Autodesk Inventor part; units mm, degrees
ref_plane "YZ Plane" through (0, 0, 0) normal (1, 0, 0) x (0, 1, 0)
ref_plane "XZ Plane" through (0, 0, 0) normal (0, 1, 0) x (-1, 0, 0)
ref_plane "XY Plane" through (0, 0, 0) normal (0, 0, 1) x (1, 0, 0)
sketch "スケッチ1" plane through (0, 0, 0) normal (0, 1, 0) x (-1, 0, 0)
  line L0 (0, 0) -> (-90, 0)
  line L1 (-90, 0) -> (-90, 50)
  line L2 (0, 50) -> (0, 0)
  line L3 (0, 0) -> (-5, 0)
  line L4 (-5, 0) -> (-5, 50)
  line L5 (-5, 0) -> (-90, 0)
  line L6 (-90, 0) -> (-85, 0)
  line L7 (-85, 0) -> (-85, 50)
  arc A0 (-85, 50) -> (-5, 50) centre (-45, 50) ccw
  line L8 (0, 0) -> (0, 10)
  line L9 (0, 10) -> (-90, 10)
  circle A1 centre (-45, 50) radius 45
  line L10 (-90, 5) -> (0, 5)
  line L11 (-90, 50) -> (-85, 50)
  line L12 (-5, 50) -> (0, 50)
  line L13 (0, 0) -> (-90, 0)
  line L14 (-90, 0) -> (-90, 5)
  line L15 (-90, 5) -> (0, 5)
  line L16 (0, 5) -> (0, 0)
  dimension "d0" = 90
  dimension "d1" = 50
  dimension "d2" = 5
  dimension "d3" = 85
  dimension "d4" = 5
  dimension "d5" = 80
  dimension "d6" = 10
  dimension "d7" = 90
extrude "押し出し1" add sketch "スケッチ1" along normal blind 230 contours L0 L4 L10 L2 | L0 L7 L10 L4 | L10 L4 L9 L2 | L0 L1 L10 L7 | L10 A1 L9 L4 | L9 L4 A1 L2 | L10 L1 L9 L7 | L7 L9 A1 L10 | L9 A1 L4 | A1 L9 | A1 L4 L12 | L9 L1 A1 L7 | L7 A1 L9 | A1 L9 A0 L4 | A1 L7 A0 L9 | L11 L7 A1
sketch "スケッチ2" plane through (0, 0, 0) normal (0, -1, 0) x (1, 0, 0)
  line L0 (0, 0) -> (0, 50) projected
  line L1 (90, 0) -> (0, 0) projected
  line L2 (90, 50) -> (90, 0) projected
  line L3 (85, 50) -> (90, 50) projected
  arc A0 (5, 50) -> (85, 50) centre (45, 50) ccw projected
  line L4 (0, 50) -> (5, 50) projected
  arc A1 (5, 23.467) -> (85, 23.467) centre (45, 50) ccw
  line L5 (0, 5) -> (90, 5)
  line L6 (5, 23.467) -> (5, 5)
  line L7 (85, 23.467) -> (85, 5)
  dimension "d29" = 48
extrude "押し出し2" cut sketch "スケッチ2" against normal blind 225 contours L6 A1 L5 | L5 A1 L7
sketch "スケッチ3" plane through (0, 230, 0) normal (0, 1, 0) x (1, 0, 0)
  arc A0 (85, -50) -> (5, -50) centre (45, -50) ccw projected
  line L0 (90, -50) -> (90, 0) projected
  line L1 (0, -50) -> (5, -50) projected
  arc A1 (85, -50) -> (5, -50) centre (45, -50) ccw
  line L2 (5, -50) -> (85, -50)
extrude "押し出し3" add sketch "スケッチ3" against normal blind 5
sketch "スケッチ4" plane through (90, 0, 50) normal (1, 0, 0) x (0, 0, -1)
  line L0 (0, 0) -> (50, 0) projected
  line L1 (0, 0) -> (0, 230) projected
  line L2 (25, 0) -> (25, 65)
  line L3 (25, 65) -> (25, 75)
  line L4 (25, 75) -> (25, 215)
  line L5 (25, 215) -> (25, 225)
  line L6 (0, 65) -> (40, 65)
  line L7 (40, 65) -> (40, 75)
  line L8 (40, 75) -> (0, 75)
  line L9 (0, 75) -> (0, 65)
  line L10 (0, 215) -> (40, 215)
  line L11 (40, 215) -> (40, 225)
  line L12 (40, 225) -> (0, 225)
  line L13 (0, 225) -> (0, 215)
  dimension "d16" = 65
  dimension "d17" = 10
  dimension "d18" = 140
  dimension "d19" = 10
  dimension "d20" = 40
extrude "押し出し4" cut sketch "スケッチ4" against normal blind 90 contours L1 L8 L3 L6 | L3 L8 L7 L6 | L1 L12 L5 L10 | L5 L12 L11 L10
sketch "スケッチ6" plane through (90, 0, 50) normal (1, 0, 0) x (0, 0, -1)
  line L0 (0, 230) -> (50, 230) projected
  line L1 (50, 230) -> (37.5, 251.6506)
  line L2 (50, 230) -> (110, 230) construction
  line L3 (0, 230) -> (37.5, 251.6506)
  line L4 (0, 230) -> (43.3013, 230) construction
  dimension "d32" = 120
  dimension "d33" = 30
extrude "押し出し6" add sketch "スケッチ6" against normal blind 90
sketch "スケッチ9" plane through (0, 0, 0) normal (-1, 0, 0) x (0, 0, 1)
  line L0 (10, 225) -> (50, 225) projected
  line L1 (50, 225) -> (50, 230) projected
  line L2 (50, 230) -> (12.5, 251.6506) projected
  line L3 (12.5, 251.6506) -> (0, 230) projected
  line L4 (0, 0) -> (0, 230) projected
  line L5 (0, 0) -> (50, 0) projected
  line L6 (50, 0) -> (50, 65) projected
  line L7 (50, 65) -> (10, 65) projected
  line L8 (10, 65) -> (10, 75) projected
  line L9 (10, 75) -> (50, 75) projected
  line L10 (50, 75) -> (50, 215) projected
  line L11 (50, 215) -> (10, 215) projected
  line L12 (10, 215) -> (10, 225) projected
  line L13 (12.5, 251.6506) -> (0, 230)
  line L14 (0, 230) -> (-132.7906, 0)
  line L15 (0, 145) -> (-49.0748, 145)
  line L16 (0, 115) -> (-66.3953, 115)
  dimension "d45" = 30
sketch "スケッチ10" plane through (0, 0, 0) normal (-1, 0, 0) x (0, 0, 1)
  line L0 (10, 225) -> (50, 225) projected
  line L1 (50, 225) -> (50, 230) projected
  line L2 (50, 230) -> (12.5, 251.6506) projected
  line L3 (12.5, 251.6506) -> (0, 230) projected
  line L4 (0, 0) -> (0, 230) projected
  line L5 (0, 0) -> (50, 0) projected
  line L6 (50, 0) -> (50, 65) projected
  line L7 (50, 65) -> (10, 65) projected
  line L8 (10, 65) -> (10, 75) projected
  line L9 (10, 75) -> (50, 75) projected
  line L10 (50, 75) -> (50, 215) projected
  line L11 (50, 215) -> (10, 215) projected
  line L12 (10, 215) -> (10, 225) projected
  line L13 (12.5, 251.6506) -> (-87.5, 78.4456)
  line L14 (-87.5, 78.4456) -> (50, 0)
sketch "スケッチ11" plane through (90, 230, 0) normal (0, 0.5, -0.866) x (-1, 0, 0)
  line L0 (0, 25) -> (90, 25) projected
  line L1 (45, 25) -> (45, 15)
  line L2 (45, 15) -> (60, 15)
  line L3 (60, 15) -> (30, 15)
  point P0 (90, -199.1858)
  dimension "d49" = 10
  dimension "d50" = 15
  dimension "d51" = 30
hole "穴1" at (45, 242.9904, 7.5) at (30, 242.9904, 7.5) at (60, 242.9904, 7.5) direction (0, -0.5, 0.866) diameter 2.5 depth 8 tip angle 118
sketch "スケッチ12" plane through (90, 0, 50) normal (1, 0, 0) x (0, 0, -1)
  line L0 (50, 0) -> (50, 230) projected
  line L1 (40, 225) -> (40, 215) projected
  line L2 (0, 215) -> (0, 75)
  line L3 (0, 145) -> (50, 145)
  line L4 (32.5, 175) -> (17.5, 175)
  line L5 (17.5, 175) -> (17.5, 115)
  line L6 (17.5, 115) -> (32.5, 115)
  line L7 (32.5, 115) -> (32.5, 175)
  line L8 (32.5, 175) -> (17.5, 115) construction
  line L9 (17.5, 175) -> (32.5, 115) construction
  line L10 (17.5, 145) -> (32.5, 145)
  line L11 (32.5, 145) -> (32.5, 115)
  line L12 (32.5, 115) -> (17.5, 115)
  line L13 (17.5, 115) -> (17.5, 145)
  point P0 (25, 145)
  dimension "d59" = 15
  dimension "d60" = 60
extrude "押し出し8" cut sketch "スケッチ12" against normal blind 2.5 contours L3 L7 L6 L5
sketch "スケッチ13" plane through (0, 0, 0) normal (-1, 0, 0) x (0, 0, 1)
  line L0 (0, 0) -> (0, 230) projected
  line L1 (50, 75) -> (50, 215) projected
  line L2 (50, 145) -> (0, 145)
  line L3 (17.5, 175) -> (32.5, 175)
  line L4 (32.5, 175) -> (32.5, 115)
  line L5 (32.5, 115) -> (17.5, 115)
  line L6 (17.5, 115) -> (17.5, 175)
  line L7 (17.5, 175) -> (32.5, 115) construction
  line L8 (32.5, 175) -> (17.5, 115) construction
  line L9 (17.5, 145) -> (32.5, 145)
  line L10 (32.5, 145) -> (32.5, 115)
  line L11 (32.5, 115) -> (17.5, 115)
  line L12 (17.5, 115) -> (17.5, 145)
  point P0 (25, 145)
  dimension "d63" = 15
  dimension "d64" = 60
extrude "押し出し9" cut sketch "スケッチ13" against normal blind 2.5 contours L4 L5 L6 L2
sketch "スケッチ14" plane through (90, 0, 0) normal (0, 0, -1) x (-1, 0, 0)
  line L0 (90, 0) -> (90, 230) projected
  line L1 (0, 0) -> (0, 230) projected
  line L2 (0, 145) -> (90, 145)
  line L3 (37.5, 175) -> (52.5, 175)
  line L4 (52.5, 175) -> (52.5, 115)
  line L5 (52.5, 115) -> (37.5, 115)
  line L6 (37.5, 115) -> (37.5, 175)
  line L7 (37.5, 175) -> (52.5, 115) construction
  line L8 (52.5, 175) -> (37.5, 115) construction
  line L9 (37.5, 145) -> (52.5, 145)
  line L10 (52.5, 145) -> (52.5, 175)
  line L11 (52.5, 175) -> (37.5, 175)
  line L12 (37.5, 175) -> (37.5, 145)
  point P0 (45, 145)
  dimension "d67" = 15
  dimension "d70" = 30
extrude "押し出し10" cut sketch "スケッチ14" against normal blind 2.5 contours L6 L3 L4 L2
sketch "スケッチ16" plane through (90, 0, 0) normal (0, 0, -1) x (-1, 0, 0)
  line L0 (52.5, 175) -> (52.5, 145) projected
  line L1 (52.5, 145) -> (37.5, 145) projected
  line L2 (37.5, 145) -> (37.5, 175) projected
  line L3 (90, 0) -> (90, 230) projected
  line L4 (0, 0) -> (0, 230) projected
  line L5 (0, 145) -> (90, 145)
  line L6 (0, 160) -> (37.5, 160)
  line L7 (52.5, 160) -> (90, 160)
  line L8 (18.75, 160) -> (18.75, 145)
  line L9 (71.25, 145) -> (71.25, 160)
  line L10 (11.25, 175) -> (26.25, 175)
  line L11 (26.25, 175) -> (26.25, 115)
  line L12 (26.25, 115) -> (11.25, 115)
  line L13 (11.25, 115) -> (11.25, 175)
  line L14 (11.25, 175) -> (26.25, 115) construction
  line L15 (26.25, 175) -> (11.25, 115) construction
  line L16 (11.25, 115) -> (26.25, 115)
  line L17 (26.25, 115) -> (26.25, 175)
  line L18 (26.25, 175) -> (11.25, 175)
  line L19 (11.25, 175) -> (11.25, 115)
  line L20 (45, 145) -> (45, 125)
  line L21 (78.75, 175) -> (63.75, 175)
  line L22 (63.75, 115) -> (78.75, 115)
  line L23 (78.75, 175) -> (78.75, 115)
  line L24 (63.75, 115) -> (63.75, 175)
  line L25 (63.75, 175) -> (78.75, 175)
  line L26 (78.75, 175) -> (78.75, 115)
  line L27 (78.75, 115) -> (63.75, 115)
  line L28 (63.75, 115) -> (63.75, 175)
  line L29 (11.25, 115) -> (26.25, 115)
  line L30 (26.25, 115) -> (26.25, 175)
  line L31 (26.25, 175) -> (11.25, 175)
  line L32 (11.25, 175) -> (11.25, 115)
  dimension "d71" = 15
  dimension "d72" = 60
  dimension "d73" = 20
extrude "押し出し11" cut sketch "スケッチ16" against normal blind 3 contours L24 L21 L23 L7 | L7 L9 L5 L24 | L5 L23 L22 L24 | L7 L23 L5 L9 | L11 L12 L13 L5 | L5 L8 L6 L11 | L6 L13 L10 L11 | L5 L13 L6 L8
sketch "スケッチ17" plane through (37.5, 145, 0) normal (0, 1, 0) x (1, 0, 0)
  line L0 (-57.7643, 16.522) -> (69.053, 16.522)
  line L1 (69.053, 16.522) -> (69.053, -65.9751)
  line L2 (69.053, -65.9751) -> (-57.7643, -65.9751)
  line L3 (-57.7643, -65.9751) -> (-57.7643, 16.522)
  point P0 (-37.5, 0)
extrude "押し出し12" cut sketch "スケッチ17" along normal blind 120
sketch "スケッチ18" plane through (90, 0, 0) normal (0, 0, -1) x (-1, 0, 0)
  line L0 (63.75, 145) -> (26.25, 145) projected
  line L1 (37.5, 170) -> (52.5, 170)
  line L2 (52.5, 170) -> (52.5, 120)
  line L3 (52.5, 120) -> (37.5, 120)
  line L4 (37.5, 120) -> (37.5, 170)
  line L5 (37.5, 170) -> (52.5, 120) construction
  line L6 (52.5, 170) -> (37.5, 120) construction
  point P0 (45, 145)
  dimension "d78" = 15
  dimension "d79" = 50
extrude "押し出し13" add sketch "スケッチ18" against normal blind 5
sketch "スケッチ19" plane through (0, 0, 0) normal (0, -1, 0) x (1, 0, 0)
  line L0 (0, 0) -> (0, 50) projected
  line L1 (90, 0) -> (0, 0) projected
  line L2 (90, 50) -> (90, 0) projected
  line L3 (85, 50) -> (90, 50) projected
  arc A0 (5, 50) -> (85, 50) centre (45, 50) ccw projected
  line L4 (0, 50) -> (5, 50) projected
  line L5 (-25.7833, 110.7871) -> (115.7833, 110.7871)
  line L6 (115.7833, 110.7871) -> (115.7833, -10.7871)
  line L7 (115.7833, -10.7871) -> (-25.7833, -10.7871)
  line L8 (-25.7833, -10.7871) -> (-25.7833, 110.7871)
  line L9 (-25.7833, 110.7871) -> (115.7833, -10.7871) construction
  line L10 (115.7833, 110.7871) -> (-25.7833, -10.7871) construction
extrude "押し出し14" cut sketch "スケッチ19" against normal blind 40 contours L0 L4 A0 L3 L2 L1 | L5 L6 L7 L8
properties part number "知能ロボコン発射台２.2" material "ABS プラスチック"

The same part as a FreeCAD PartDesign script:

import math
import FreeCAD as App
import Part
import Sketcher
from FreeCAD import Vector
Q = App.Units.Quantity

doc = App.newDocument("Part")
body = doc.addObject("PartDesign::Body", "Body")

sketch1 = body.newObject("Sketcher::SketchObject", "Sketch")
sketch1.AttachmentSupport = (doc.getObject("XZ_Plane"), [""])
sketch1.MapMode = "FlatFace"
sketch1.addGeometry([
    Part.LineSegment(Vector(0, 0, 0), Vector(0, 50, 0)),
    Part.LineSegment(Vector(0, 50, 0), Vector(5, 50, 0)),
    Part.ArcOfCircle(Part.Circle(Vector(45, 50, 0), Vector(0, 0, 1), 40), math.radians(180), math.radians(360)),
    Part.LineSegment(Vector(85, 50, 0), Vector(90, 50, 0)),
    Part.LineSegment(Vector(90, 50, 0), Vector(90, 0, 0)),
    Part.LineSegment(Vector(90, 0, 0), Vector(0, 0, 0)),
], False)
sketch1.addConstraint([
    Sketcher.Constraint("Coincident", 0, 2, 1, 1),
    Sketcher.Constraint("Coincident", 1, 2, 2, 1),
    Sketcher.Constraint("Coincident", 2, 2, 3, 1),
    Sketcher.Constraint("Coincident", 3, 2, 4, 1),
    Sketcher.Constraint("Coincident", 4, 2, 5, 1),
    Sketcher.Constraint("Coincident", 5, 2, 0, 1),
    Sketcher.Constraint("Vertical", 0),
    Sketcher.Constraint("Horizontal", 1),
    Sketcher.Constraint("Horizontal", 3),
    Sketcher.Constraint("Vertical", 4),
    Sketcher.Constraint("Horizontal", 5),
    Sketcher.Constraint("Coincident", 5, 2, -1, 1),
    Sketcher.Constraint("Horizontal", 2, 3, 0, 2),
    Sketcher.Constraint("Horizontal", 1, 2, 2, 2),
    Sketcher.Constraint("Equal", 1, 3),
    Sketcher.Constraint("Radius", 2, 40.0),
    Sketcher.Constraint("DistanceX", 1, 1, 1, 2, 5.0),
    Sketcher.Constraint("DistanceY", 0, 1, 0, 2, 50.0),
])
pad1 = body.newObject("PartDesign::Pad", "Pad")
pad1.Profile = sketch1
pad1.Length = 230
pad1.Reversed = True

sketch2 = body.newObject("Sketcher::SketchObject", "Sketch001")
sketch2.AttachmentSupport = (doc.getObject("XZ_Plane"), [""])
sketch2.MapMode = "FlatFace"
sketch2.addGeometry([
    Part.LineSegment(Vector(5, 23, 0), Vector(5, 5, 0)),
    Part.LineSegment(Vector(5, 5, 0), Vector(28, 5, 0)),
    Part.ArcOfCircle(Part.Circle(Vector(45, 50, 0), Vector(0, 0, 1), 48), math.radians(-146), math.radians(-110)),
    Part.LineSegment(Vector(62, 5, 0), Vector(85, 5, 0)),
    Part.LineSegment(Vector(85, 5, 0), Vector(85, 23, 0)),
    Part.ArcOfCircle(Part.Circle(Vector(45, 50, 0), Vector(0, 0, 1), 48), math.radians(-70), math.radians(-34)),
], False)
sketch2.addConstraint([
    Sketcher.Constraint("Coincident", 0, 2, 1, 1),
    Sketcher.Constraint("Coincident", 1, 2, 2, 2),
    Sketcher.Constraint("Coincident", 2, 1, 0, 1),
    Sketcher.Constraint("Coincident", 3, 2, 4, 1),
    Sketcher.Constraint("Coincident", 4, 2, 5, 2),
    Sketcher.Constraint("Coincident", 5, 1, 3, 1),
    Sketcher.Constraint("Vertical", 0),
    Sketcher.Constraint("Horizontal", 1),
    Sketcher.Constraint("Horizontal", 3),
    Sketcher.Constraint("Vertical", 4),
    Sketcher.Constraint("Coincident", 5, 3, 2, 3),
    Sketcher.Constraint("Equal", 2, 5),
    Sketcher.Constraint("Horizontal", 1, 2, 3, 2),
    Sketcher.Constraint("Horizontal", 2, 1, 4, 2),
    Sketcher.Constraint("Radius", 2, 48.0),
    Sketcher.Constraint("DistanceX", -1, 1, 2, 3, 45.0),
    Sketcher.Constraint("DistanceY", -1, 1, 2, 3, 50.0),
    Sketcher.Constraint("DistanceX", -1, 1, 0, 2, 5.0),
    Sketcher.Constraint("DistanceY", -1, 1, 0, 2, 5.0),
])
pocket1 = body.newObject("PartDesign::Pocket", "Pocket")
pocket1.Profile = sketch2
pocket1.Length = 225

sketch3 = body.newObject("Sketcher::SketchObject", "Sketch002")
sketch3.AttachmentSupport = (doc.getObject("XZ_Plane"), [""])
sketch3.MapMode = "FlatFace"
sketch3.AttachmentOffset = App.Placement(Vector(0, 0, -230), App.Rotation())
sketch3.addGeometry([
    Part.LineSegment(Vector(5, 50, 0), Vector(85, 50, 0)),
    Part.ArcOfCircle(Part.Circle(Vector(45, 50, 0), Vector(0, 0, 1), 40), math.radians(180), math.radians(360)),
], False)
sketch3.addConstraint([
    Sketcher.Constraint("Coincident", 0, 1, 1, 1),
    Sketcher.Constraint("Coincident", 1, 2, 0, 2),
    Sketcher.Constraint("Horizontal", 0),
    Sketcher.Constraint("Horizontal", 1, 3, 0, 1),
    Sketcher.Constraint("Radius", 1, 40.0),
    Sketcher.Constraint("DistanceX", -1, 1, 1, 3, 45.0),
    Sketcher.Constraint("DistanceY", -1, 1, 1, 3, 50.0),
])
pad2 = body.newObject("PartDesign::Pad", "Pad001")
pad2.Profile = sketch3
pad2.Length = 5

sketch4 = body.newObject("Sketcher::SketchObject", "Sketch003")
sketch4.AttachmentSupport = (doc.getObject("YZ_Plane"), [""])
sketch4.MapMode = "FlatFace"
sketch4.AttachmentOffset = App.Placement(Vector(0, 0, 90), App.Rotation())
sketch4.addGeometry([
    Part.LineSegment(Vector(75, 50, 0), Vector(65, 50, 0)),
    Part.LineSegment(Vector(65, 50, 0), Vector(65, 10, 0)),
    Part.LineSegment(Vector(65, 10, 0), Vector(75, 10, 0)),
    Part.LineSegment(Vector(75, 10, 0), Vector(75, 50, 0)),
    Part.LineSegment(Vector(225, 50, 0), Vector(215, 50, 0)),
    Part.LineSegment(Vector(215, 50, 0), Vector(215, 10, 0)),
    Part.LineSegment(Vector(215, 10, 0), Vector(225, 10, 0)),
    Part.LineSegment(Vector(225, 10, 0), Vector(225, 50, 0)),
], False)
sketch4.addConstraint([
    Sketcher.Constraint("Coincident", 0, 2, 1, 1),
    Sketcher.Constraint("Coincident", 1, 2, 2, 1),
    Sketcher.Constraint("Coincident", 2, 2, 3, 1),
    Sketcher.Constraint("Coincident", 3, 2, 0, 1),
    Sketcher.Constraint("Coincident", 4, 2, 5, 1),
    Sketcher.Constraint("Coincident", 5, 2, 6, 1),
    Sketcher.Constraint("Coincident", 6, 2, 7, 1),
    Sketcher.Constraint("Coincident", 7, 2, 4, 1),
    Sketcher.Constraint("Horizontal", 0),
    Sketcher.Constraint("Vertical", 1),
    Sketcher.Constraint("Horizontal", 2),
    Sketcher.Constraint("Vertical", 3),
    Sketcher.Constraint("Horizontal", 4),
    Sketcher.Constraint("Vertical", 5),
    Sketcher.Constraint("Horizontal", 6),
    Sketcher.Constraint("Vertical", 7),
    Sketcher.Constraint("Horizontal", 3, 2, 4, 2),
    Sketcher.Constraint("Horizontal", 2, 2, 5, 2),
    Sketcher.Constraint("Equal", 2, 4),
    Sketcher.Constraint("DistanceX", 0, 2, 0, 1, 10.0),
    Sketcher.Constraint("DistanceY", 1, 2, 1, 1, 40.0),
    Sketcher.Constraint("DistanceX", -1, 1, 0, 2, 65.0),
    Sketcher.Constraint("DistanceY", -1, 1, 1, 2, 10.0),
    Sketcher.Constraint("DistanceX", 3, 2, 4, 2, 140.0),
])
pocket2 = body.newObject("PartDesign::Pocket", "Pocket001")
pocket2.Profile = sketch4
pocket2.Length = 90

sketch5 = body.newObject("Sketcher::SketchObject", "Sketch004")
sketch5.AttachmentSupport = (doc.getObject("YZ_Plane"), [""])
sketch5.MapMode = "FlatFace"
sketch5.AttachmentOffset = App.Placement(Vector(0, 0, 90), App.Rotation())
sketch5.addGeometry([
    Part.LineSegment(Vector(252, 12, 0), Vector(230, 50, 0)),
    Part.LineSegment(Vector(230, 50, 0), Vector(230, 0, 0)),
    Part.LineSegment(Vector(230, 0, 0), Vector(252, 12, 0)),
], False)
sketch5.addConstraint([
    Sketcher.Constraint("Coincident", 0, 2, 1, 1),
    Sketcher.Constraint("Coincident", 1, 2, 2, 1),
    Sketcher.Constraint("Coincident", 2, 2, 0, 1),
    Sketcher.Constraint("Vertical", 1),
    Sketcher.Constraint("PointOnObject", 1, 2, -1),
    Sketcher.Constraint("Perpendicular", 0, 2),
    Sketcher.Constraint("Angle", 0, Q("120 deg")),
    Sketcher.Constraint("DistanceY", 1, 2, 1, 1, 50.0),
    Sketcher.Constraint("DistanceX", -1, 1, 0, 2, 230.0),
])
pad3 = body.newObject("PartDesign::Pad", "Pad002")
pad3.Profile = sketch5
pad3.Length = 90
pad3.Reversed = True

sketch6 = body.newObject("Sketcher::SketchObject", "Sketch005")
sketch6.Placement = App.Placement(Vector(0, 57.500005, -99.59293), App.Rotation(Vector(0, 0.866025404, 0.5), Vector(1, 0, 0), Vector(0, 0.5, -0.866025404), "ZXY"))
sketch6.addGeometry([
    Part.Circle(Vector(214.2, 45, 0), Vector(0, 0, 1), 1.2),
    Part.Circle(Vector(214.2, 30, 0), Vector(0, 0, 1), 1.2),
    Part.Circle(Vector(214.2, 60, 0), Vector(0, 0, 1), 1.2),
], False)
sketch6.addConstraint([
    Sketcher.Constraint("Equal", 0, 1),
    Sketcher.Constraint("Equal", 1, 2),
    Sketcher.Constraint("Vertical", 0, 3, 1, 3),
    Sketcher.Constraint("Vertical", 1, 3, 2, 3),
    Sketcher.Constraint("Diameter", 0, 2.5),
    Sketcher.Constraint("DistanceY", -1, 1, 0, 3, 45.0),
    Sketcher.Constraint("DistanceY", -1, 1, 1, 3, 30.0),
    Sketcher.Constraint("DistanceY", -1, 1, 2, 3, 60.0),
    Sketcher.Constraint("DistanceX", -1, 1, 0, 3, 214.1859),
])
doc.recompute()
hole = body.newObject("PartDesign::Hole", "Hole")
hole.Profile = sketch6
hole.ThreadType = "None"
hole.Diameter = 2.5
hole.DepthType = "Dimension"
hole.Depth = 8
hole.DrillPoint = "Angled"
hole.DrillPointAngle = 118

sketch7 = body.newObject("Sketcher::SketchObject", "Sketch006")
sketch7.AttachmentSupport = (doc.getObject("YZ_Plane"), [""])
sketch7.MapMode = "FlatFace"
sketch7.AttachmentOffset = App.Placement(Vector(0, 0, 90), App.Rotation())
sketch7.addGeometry([
    Part.LineSegment(Vector(145, 18, 0), Vector(145, 32, 0)),
    Part.LineSegment(Vector(145, 32, 0), Vector(115, 32, 0)),
    Part.LineSegment(Vector(115, 32, 0), Vector(115, 18, 0)),
    Part.LineSegment(Vector(115, 18, 0), Vector(145, 18, 0)),
], False)
sketch7.addConstraint([
    Sketcher.Constraint("Coincident", 0, 2, 1, 1),
    Sketcher.Constraint("Coincident", 1, 2, 2, 1),
    Sketcher.Constraint("Coincident", 2, 2, 3, 1),
    Sketcher.Constraint("Coincident", 3, 2, 0, 1),
    Sketcher.Constraint("Vertical", 0),
    Sketcher.Constraint("Horizontal", 1),
    Sketcher.Constraint("Vertical", 2),
    Sketcher.Constraint("Horizontal", 3),
    Sketcher.Constraint("DistanceY", 0, 1, 0, 2, 15.0),
    Sketcher.Constraint("DistanceX", 1, 2, 1, 1, 30.0),
    Sketcher.Constraint("DistanceX", -1, 1, 0, 2, 145.0),
    Sketcher.Constraint("DistanceY", -1, 1, 0, 2, 32.5),
])
pocket3 = body.newObject("PartDesign::Pocket", "Pocket002")
pocket3.Profile = sketch7
pocket3.Length = 2.5

sketch8 = body.newObject("Sketcher::SketchObject", "Sketch007")
sketch8.AttachmentSupport = (doc.getObject("YZ_Plane"), [""])
sketch8.MapMode = "FlatFace"
sketch8.addGeometry([
    Part.LineSegment(Vector(115, 32, 0), Vector(145, 32, 0)),
    Part.LineSegment(Vector(145, 32, 0), Vector(145, 18, 0)),
    Part.LineSegment(Vector(145, 18, 0), Vector(115, 18, 0)),
    Part.LineSegment(Vector(115, 18, 0), Vector(115, 32, 0)),
], False)
sketch8.addConstraint([
    Sketcher.Constraint("Coincident", 0, 2, 1, 1),
    Sketcher.Constraint("Coincident", 1, 2, 2, 1),
    Sketcher.Constraint("Coincident", 2, 2, 3, 1),
    Sketcher.Constraint("Coincident", 3, 2, 0, 1),
    Sketcher.Constraint("Horizontal", 0),
    Sketcher.Constraint("Vertical", 1),
    Sketcher.Constraint("Horizontal", 2),
    Sketcher.Constraint("Vertical", 3),
    Sketcher.Constraint("DistanceY", 1, 2, 1, 1, 15.0),
    Sketcher.Constraint("DistanceX", 0, 1, 0, 2, 30.0),
    Sketcher.Constraint("DistanceX", -1, 1, 0, 2, 145.0),
    Sketcher.Constraint("DistanceY", -1, 1, 0, 2, 32.5),
])
pocket4 = body.newObject("PartDesign::Pocket", "Pocket003")
pocket4.Profile = sketch8
pocket4.Length = 2.5
pocket4.Reversed = True

sketch9 = body.newObject("Sketcher::SketchObject", "Sketch008")
sketch9.AttachmentSupport = (doc.getObject("XY_Plane"), [""])
sketch9.MapMode = "FlatFace"
sketch9.addGeometry([
    Part.LineSegment(Vector(52, 175, 0), Vector(52, 145, 0)),
    Part.LineSegment(Vector(52, 145, 0), Vector(38, 145, 0)),
    Part.LineSegment(Vector(38, 145, 0), Vector(38, 175, 0)),
    Part.LineSegment(Vector(38, 175, 0), Vector(52, 175, 0)),
], False)
sketch9.addConstraint([
    Sketcher.Constraint("Coincident", 0, 2, 1, 1),
    Sketcher.Constraint("Coincident", 1, 2, 2, 1),
    Sketcher.Constraint("Coincident", 2, 2, 3, 1),
    Sketcher.Constraint("Coincident", 3, 2, 0, 1),
    Sketcher.Constraint("Vertical", 0),
    Sketcher.Constraint("Horizontal", 1),
    Sketcher.Constraint("Vertical", 2),
    Sketcher.Constraint("Horizontal", 3),
    Sketcher.Constraint("DistanceX", 1, 2, 1, 1, 15.0),
    Sketcher.Constraint("DistanceY", 0, 2, 0, 1, 30.0),
    Sketcher.Constraint("DistanceY", -1, 1, 0, 2, 145.0),
    Sketcher.Constraint("DistanceX", -1, 1, 0, 2, 52.5),
])
pocket5 = body.newObject("PartDesign::Pocket", "Pocket004")
pocket5.Profile = sketch9
pocket5.Length = 2.5
pocket5.Reversed = True

sketch10 = body.newObject("Sketcher::SketchObject", "Sketch009")
sketch10.AttachmentSupport = (doc.getObject("XY_Plane"), [""])
sketch10.MapMode = "FlatFace"
sketch10.addGeometry([
    Part.LineSegment(Vector(26, 175, 0), Vector(26, 115, 0)),
    Part.LineSegment(Vector(26, 115, 0), Vector(11, 115, 0)),
    Part.LineSegment(Vector(11, 115, 0), Vector(11, 175, 0)),
    Part.LineSegment(Vector(11, 175, 0), Vector(26, 175, 0)),
    Part.LineSegment(Vector(64, 115, 0), Vector(64, 175, 0)),
    Part.LineSegment(Vector(64, 175, 0), Vector(79, 175, 0)),
    Part.LineSegment(Vector(79, 175, 0), Vector(79, 115, 0)),
    Part.LineSegment(Vector(79, 115, 0), Vector(64, 115, 0)),
], False)
sketch10.addConstraint([
    Sketcher.Constraint("Coincident", 0, 2, 1, 1),
    Sketcher.Constraint("Coincident", 1, 2, 2, 1),
    Sketcher.Constraint("Coincident", 2, 2, 3, 1),
    Sketcher.Constraint("Coincident", 3, 2, 0, 1),
    Sketcher.Constraint("Coincident", 4, 2, 5, 1),
    Sketcher.Constraint("Coincident", 5, 2, 6, 1),
    Sketcher.Constraint("Coincident", 6, 2, 7, 1),
    Sketcher.Constraint("Coincident", 7, 2, 4, 1),
    Sketcher.Constraint("Vertical", 0),
    Sketcher.Constraint("Horizontal", 1),
    Sketcher.Constraint("Vertical", 2),
    Sketcher.Constraint("Horizontal", 3),
    Sketcher.Constraint("Vertical", 4),
    Sketcher.Constraint("Horizontal", 5),
    Sketcher.Constraint("Vertical", 6),
    Sketcher.Constraint("Horizontal", 7),
    Sketcher.Constraint("Horizontal", 3, 2, 4, 2),
    Sketcher.Constraint("Horizontal", 1, 2, 6, 2),
    Sketcher.Constraint("Equal", 3, 5),
    Sketcher.Constraint("DistanceX", 1, 2, 1, 1, 15.0),
    Sketcher.Constraint("DistanceY", 0, 2, 0, 1, 60.0),
    Sketcher.Constraint("DistanceY", -1, 1, 0, 2, 115.0),
    Sketcher.Constraint("DistanceX", 3, 2, 4, 2, 37.5),
    Sketcher.Constraint("DistanceX", -1, 1, 0, 2, 26.25),
])
pocket6 = body.newObject("PartDesign::Pocket", "Pocket005")
pocket6.Profile = sketch10
pocket6.Length = 3
pocket6.Reversed = True

sketch11 = body.newObject("Sketcher::SketchObject", "Sketch010")
sketch11.AttachmentSupport = (doc.getObject("XZ_Plane"), [""])
sketch11.MapMode = "FlatFace"
sketch11.AttachmentOffset = App.Placement(Vector(0, 0, -145), App.Rotation())
sketch11.addGeometry([
    Part.LineSegment(Vector(107, -17, 0), Vector(-20, -17, 0)),
    Part.LineSegment(Vector(-20, -17, 0), Vector(-20, 66, 0)),
    Part.LineSegment(Vector(-20, 66, 0), Vector(107, 66, 0)),
    Part.LineSegment(Vector(107, 66, 0), Vector(107, -17, 0)),
], False)
sketch11.addConstraint([
    Sketcher.Constraint("Coincident", 0, 2, 1, 1),
    Sketcher.Constraint("Coincident", 1, 2, 2, 1),
    Sketcher.Constraint("Coincident", 2, 2, 3, 1),
    Sketcher.Constraint("Coincident", 3, 2, 0, 1),
    Sketcher.Constraint("Horizontal", 0),
    Sketcher.Constraint("Vertical", 1),
    Sketcher.Constraint("Horizontal", 2),
    Sketcher.Constraint("Vertical", 3),
    Sketcher.Constraint("DistanceY", 1, 1, 1, 2, 82.497),
    Sketcher.Constraint("DistanceX", 0, 2, 0, 1, 126.8173),
    Sketcher.Constraint("DistanceY", 0, 2, -1, 1, 16.522),
    Sketcher.Constraint("DistanceX", -1, 1, 2, 2, 106.553),
])
pocket7 = body.newObject("PartDesign::Pocket", "Pocket006")
pocket7.Profile = sketch11
pocket7.Length = 120

sketch12 = body.newObject("Sketcher::SketchObject", "Sketch011")
sketch12.AttachmentSupport = (doc.getObject("XY_Plane"), [""])
sketch12.MapMode = "FlatFace"
sketch12.addGeometry([
    Part.LineSegment(Vector(38, 120, 0), Vector(38, 170, 0)),
    Part.LineSegment(Vector(38, 170, 0), Vector(52, 170, 0)),
    Part.LineSegment(Vector(52, 170, 0), Vector(52, 120, 0)),
    Part.LineSegment(Vector(52, 120, 0), Vector(38, 120, 0)),
], False)
sketch12.addConstraint([
    Sketcher.Constraint("Coincident", 0, 2, 1, 1),
    Sketcher.Constraint("Coincident", 1, 2, 2, 1),
    Sketcher.Constraint("Coincident", 2, 2, 3, 1),
    Sketcher.Constraint("Coincident", 3, 2, 0, 1),
    Sketcher.Constraint("Vertical", 0),
    Sketcher.Constraint("Horizontal", 1),
    Sketcher.Constraint("Vertical", 2),
    Sketcher.Constraint("Horizontal", 3),
    Sketcher.Constraint("DistanceX", 1, 1, 1, 2, 15.0),
    Sketcher.Constraint("DistanceY", 0, 1, 0, 2, 50.0),
    Sketcher.Constraint("DistanceY", -1, 1, 0, 2, 170.0),
    Sketcher.Constraint("DistanceX", -1, 1, 0, 2, 37.5),
])
pad4 = body.newObject("PartDesign::Pad", "Pad003")
pad4.Profile = sketch12
pad4.Length = 5

sketch13 = body.newObject("Sketcher::SketchObject", "Sketch012")
sketch13.AttachmentSupport = (doc.getObject("XZ_Plane"), [""])
sketch13.MapMode = "FlatFace"
sketch13.addGeometry([
    Part.LineSegment(Vector(116, 111, 0), Vector(-26, 111, 0)),
    Part.LineSegment(Vector(-26, 111, 0), Vector(-26, -11, 0)),
    Part.LineSegment(Vector(-26, -11, 0), Vector(116, -11, 0)),
    Part.LineSegment(Vector(116, -11, 0), Vector(116, 111, 0)),
], False)
sketch13.addConstraint([
    Sketcher.Constraint("Coincident", 0, 2, 1, 1),
    Sketcher.Constraint("Coincident", 1, 2, 2, 1),
    Sketcher.Constraint("Coincident", 2, 2, 3, 1),
    Sketcher.Constraint("Coincident", 3, 2, 0, 1),
    Sketcher.Constraint("Horizontal", 0),
    Sketcher.Constraint("Vertical", 1),
    Sketcher.Constraint("Horizontal", 2),
    Sketcher.Constraint("Vertical", 3),
    Sketcher.Constraint("DistanceX", 0, 2, 0, 1, 141.5666),
    Sketcher.Constraint("DistanceY", 1, 2, 1, 1, 121.5742),
    Sketcher.Constraint("DistanceY", -1, 1, 0, 2, 110.787),
    Sketcher.Constraint("DistanceX", 0, 2, -1, 1, 25.7833),
])
pocket8 = body.newObject("PartDesign::Pocket", "Pocket007")
pocket8.Profile = sketch13
pocket8.Length = 40

doc.recompute()
